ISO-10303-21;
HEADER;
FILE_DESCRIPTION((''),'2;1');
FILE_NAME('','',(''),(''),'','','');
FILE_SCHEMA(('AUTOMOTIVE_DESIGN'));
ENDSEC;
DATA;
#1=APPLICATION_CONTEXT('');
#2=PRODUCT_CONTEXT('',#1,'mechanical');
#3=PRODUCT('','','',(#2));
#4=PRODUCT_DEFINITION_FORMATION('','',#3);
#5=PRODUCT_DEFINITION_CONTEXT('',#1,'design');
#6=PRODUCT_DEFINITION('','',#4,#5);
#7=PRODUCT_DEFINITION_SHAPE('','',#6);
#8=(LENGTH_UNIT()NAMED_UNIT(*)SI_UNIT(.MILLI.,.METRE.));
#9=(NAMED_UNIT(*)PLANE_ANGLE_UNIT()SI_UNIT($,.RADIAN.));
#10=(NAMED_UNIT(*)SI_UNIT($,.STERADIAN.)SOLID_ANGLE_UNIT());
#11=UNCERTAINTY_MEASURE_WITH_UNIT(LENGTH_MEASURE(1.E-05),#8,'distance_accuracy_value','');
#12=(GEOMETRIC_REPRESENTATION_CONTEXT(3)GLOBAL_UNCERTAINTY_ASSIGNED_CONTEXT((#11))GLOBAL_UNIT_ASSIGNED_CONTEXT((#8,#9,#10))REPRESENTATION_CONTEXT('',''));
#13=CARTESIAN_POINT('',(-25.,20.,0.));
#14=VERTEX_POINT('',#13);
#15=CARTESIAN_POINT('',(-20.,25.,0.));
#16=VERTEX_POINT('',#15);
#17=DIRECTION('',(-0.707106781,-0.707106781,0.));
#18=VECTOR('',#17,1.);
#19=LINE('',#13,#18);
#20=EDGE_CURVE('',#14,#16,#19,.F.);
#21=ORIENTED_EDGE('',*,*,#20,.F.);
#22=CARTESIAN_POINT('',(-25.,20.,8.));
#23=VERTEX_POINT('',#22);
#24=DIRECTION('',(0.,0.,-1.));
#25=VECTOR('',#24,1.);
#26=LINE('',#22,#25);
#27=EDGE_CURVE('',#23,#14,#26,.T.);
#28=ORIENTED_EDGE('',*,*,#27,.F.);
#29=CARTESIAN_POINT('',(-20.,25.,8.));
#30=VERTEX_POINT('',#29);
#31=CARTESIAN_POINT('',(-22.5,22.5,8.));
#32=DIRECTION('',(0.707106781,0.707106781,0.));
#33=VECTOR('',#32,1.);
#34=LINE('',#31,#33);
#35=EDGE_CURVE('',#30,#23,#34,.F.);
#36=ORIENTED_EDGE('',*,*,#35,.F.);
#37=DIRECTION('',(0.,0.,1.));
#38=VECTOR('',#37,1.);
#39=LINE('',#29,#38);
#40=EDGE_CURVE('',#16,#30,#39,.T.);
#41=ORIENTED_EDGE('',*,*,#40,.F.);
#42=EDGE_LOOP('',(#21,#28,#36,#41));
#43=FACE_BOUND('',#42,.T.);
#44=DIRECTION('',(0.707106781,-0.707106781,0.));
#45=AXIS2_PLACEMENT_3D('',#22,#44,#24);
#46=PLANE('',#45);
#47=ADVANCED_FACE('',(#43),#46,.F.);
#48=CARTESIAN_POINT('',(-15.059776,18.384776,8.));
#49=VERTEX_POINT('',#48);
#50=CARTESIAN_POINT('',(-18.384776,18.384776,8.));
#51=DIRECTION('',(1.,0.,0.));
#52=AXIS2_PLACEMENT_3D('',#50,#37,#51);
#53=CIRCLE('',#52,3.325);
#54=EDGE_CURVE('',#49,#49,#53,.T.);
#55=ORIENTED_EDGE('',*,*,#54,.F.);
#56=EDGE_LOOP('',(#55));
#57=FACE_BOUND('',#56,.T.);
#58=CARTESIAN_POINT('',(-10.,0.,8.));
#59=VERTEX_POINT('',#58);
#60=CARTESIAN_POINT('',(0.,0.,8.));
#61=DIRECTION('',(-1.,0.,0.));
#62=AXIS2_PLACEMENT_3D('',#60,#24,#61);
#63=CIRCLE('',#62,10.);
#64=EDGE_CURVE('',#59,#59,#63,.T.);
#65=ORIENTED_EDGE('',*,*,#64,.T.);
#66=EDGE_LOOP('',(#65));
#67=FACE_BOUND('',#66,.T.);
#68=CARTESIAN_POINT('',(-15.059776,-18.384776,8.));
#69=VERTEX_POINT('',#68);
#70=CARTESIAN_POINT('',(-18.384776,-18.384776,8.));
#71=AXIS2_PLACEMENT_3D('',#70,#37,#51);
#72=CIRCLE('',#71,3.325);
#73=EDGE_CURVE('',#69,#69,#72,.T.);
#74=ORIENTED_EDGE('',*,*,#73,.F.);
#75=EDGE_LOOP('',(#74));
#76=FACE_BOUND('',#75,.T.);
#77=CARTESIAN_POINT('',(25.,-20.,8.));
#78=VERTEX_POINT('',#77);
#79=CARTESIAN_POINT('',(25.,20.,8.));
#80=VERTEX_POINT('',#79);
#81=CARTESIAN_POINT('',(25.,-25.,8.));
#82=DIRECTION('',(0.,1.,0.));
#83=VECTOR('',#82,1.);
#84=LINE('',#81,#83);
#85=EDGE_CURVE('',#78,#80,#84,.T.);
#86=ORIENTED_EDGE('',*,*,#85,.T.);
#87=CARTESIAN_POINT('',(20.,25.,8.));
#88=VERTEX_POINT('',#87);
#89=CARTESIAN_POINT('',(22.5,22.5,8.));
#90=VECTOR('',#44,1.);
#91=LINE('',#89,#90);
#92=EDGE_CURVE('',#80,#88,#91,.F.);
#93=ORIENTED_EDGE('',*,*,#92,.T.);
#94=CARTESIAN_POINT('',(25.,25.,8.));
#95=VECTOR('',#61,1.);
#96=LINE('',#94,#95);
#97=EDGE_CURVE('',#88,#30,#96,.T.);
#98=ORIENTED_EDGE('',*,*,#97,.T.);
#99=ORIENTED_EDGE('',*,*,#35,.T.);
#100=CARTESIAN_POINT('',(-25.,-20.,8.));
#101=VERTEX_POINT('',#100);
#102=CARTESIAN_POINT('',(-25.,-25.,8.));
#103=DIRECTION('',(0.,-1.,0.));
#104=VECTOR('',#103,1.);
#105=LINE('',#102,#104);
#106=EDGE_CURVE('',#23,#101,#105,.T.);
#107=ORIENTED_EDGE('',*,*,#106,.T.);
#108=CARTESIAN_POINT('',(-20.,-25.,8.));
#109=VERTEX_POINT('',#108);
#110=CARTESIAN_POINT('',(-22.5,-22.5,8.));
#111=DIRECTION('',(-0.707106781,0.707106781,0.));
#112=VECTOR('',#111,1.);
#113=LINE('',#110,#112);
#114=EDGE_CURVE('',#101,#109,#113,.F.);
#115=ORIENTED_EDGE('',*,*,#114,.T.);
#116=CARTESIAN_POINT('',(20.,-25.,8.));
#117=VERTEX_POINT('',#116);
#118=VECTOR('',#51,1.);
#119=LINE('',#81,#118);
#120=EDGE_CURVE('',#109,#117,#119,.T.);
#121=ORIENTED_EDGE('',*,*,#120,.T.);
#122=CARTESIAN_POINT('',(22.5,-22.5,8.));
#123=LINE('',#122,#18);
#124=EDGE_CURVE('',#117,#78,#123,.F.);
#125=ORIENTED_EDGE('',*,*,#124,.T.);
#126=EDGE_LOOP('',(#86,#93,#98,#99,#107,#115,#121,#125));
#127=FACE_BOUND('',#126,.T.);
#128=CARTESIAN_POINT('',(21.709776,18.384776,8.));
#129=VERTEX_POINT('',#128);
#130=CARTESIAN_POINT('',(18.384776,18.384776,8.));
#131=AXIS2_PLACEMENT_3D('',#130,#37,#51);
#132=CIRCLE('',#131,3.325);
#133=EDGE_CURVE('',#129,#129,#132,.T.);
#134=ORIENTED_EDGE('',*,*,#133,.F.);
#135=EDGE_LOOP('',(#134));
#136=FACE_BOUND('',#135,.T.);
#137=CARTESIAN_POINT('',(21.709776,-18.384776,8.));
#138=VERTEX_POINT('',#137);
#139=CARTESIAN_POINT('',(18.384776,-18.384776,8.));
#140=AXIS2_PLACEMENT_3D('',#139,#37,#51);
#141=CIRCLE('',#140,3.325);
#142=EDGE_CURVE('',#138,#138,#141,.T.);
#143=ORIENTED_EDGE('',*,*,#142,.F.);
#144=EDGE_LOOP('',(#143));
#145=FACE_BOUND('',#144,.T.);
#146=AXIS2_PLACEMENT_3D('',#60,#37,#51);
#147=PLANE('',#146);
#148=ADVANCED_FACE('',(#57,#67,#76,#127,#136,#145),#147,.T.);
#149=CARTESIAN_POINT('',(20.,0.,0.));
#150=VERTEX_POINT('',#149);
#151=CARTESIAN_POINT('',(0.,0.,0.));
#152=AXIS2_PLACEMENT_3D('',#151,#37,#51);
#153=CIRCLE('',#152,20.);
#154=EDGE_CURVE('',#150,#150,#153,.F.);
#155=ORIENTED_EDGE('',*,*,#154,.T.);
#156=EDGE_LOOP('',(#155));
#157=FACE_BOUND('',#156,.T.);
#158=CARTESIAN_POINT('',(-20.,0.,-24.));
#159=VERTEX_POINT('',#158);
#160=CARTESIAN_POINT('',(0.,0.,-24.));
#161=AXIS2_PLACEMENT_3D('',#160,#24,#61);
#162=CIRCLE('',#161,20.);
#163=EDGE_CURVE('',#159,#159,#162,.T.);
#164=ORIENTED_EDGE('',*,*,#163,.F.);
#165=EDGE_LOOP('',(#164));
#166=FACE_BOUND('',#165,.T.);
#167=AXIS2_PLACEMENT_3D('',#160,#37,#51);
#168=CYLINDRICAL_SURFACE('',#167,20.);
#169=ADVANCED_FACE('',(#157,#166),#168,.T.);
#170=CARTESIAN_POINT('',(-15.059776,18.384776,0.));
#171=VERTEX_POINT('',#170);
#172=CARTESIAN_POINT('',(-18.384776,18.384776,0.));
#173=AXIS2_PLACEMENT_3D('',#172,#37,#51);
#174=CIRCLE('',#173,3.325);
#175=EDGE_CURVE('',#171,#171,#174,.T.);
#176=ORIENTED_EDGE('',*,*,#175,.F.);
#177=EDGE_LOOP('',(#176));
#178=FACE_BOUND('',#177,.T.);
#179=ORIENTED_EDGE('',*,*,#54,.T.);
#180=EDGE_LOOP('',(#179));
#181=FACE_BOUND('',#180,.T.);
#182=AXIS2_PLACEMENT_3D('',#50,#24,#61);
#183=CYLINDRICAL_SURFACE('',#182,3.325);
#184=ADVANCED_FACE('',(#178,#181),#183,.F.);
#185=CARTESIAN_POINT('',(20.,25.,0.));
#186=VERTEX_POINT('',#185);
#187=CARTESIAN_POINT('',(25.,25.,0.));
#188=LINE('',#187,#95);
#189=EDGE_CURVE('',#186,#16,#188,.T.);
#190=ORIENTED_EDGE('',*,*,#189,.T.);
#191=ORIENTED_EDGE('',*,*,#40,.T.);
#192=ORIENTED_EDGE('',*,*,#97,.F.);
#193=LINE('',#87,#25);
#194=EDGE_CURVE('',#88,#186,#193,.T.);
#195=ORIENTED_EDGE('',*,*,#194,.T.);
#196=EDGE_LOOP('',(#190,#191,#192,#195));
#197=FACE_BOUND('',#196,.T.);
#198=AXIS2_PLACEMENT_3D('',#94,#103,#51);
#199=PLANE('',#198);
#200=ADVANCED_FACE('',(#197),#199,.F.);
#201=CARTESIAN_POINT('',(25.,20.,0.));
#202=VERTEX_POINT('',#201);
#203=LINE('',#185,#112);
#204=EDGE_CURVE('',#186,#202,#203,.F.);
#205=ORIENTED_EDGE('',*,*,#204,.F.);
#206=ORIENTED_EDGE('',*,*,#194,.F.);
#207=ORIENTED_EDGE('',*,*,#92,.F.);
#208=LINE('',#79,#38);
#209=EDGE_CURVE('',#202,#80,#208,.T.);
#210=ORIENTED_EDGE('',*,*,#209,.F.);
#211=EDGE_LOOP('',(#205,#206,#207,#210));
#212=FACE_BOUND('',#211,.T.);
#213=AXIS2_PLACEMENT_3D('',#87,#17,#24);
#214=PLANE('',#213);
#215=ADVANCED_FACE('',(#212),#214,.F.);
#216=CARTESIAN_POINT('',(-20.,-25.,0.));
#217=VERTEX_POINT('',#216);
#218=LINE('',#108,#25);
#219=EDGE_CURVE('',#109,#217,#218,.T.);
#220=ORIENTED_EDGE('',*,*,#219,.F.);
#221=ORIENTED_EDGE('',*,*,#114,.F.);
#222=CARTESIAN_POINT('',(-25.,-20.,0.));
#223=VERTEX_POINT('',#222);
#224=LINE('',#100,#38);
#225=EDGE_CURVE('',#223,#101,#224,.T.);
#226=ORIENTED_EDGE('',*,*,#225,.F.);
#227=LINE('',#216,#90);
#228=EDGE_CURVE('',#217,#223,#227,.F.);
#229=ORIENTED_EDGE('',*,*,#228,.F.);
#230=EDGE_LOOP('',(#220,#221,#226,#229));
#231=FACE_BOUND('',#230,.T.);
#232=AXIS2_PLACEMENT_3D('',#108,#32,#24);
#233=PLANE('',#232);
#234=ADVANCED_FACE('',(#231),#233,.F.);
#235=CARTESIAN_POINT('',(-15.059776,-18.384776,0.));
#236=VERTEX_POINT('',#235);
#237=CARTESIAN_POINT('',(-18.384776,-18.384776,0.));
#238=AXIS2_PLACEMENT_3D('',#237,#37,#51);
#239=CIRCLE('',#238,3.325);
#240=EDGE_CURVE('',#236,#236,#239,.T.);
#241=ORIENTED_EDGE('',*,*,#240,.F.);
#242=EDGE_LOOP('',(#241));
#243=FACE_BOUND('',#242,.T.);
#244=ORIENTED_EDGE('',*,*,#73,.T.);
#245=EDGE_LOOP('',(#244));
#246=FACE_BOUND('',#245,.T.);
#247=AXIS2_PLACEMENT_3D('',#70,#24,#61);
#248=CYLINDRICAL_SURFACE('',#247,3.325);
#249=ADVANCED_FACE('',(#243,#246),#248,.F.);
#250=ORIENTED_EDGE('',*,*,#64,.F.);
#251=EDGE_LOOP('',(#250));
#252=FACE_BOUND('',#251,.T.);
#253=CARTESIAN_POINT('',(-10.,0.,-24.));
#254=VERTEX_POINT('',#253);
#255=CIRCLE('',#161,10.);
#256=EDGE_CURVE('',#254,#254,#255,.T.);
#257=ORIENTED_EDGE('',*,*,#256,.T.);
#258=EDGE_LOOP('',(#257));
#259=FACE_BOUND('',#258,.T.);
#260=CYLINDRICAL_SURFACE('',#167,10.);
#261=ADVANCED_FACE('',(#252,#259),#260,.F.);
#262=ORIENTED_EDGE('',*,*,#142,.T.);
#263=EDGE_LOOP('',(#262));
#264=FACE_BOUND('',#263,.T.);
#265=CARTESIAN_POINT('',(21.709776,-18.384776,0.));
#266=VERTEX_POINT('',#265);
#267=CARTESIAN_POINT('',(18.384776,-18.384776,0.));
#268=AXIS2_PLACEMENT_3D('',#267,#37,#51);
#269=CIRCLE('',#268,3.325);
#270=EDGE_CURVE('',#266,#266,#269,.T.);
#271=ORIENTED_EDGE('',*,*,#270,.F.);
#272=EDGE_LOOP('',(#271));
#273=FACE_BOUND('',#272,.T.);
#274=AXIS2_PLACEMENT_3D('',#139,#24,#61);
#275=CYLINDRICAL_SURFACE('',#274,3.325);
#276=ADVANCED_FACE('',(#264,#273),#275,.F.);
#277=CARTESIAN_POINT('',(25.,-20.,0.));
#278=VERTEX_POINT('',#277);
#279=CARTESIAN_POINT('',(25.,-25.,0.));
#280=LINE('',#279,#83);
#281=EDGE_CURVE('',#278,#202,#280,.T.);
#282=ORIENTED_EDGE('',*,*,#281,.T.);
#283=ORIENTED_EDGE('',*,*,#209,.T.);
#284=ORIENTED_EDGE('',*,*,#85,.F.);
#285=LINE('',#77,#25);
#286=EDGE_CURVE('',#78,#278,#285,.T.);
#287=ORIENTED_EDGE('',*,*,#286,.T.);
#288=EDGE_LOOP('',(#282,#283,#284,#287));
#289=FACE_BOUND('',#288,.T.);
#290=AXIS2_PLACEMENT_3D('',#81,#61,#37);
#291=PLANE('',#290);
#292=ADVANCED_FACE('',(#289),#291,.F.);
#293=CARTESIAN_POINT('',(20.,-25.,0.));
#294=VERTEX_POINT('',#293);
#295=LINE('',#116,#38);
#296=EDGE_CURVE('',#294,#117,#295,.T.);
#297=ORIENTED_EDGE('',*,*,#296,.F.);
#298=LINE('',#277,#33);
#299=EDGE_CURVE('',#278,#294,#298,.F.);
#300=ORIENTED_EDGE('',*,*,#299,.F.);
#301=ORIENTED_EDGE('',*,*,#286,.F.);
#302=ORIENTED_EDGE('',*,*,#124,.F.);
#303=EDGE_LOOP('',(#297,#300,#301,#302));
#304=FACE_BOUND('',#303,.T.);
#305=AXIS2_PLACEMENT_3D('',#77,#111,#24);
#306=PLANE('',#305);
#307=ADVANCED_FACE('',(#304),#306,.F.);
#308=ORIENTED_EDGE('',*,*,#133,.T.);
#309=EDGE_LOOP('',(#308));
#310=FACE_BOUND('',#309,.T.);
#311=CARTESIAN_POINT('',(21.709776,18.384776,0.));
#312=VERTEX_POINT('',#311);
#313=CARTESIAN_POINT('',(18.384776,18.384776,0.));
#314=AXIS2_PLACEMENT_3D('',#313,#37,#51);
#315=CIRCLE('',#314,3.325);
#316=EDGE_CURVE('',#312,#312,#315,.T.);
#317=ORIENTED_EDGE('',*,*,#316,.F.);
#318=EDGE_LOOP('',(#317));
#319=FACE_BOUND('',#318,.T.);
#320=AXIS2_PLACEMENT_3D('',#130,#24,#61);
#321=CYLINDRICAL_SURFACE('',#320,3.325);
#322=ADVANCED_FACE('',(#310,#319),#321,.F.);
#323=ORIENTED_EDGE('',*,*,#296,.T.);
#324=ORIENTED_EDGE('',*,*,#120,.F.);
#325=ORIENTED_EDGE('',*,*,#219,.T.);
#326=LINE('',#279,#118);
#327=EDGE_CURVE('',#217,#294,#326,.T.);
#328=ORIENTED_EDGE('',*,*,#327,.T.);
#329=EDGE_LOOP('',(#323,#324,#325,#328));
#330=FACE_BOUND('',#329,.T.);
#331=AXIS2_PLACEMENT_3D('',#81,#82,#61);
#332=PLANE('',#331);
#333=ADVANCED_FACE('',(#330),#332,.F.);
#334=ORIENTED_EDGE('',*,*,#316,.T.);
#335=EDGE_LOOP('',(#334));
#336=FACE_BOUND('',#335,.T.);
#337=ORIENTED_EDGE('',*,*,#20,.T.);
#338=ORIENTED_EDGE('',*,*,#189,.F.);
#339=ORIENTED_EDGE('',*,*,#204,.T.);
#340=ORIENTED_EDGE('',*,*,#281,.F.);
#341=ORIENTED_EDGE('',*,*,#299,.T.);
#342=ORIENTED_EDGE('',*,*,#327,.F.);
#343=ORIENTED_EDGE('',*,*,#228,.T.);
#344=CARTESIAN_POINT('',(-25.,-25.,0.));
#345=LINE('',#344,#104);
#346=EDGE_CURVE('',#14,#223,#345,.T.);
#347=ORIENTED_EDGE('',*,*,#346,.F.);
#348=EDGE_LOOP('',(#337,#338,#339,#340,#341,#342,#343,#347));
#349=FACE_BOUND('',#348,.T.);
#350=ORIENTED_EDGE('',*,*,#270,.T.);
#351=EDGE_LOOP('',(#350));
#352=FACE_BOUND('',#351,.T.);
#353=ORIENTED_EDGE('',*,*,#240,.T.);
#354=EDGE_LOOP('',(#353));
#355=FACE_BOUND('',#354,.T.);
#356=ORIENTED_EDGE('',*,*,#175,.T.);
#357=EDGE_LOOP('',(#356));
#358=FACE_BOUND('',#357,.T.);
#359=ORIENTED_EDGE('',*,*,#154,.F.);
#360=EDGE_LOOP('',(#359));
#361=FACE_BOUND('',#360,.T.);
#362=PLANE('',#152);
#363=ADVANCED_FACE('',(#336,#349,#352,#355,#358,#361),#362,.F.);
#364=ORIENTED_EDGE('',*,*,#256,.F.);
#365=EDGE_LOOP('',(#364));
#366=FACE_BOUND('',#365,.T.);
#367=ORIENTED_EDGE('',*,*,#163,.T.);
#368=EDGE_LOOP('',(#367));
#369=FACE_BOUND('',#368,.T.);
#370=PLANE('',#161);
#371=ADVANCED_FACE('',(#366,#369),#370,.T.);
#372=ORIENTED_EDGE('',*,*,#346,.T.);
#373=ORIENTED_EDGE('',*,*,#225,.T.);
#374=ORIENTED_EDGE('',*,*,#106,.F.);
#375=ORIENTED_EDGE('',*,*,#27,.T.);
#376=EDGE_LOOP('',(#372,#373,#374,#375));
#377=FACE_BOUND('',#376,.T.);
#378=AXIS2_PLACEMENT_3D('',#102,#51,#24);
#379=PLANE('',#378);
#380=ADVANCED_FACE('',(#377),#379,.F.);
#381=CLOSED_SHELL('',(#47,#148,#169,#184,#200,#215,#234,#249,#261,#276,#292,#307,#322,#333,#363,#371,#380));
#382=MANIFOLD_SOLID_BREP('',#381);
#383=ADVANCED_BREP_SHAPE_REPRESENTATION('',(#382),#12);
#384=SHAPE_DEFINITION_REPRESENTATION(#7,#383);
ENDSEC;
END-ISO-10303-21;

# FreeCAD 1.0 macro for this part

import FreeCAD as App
import Part
import Sketcher

V = App.Vector


def edges_at(feature, points):
    """Names of the edges that pass closest to the given points."""
    edges = feature.Shape.Edges
    near = lambda p: min(range(len(edges)), key=lambda i: edges[i].distToShape(Part.Vertex(*p))[0])
    return sorted({f"Edge{near(p) + 1}" for p in points})


def add_polygon(sketch, points):
    """Adds a closed chain of lines whose ends are joined by coincident constraints."""
    first, n = sketch.GeometryCount, len(points)
    for a, b in zip(points, points[1:] + points[:1]):
        sketch.addGeometry(Part.LineSegment(App.Vector(*a, 0), App.Vector(*b, 0)), False)
    for i in range(n):
        sketch.addConstraint(Sketcher.Constraint("Coincident", first + i, 2, first + (i + 1) % n, 1))

doc = App.newDocument("Part")
body = doc.addObject("PartDesign::Body", "Body")

# Sketch on XY plane
sketch1 = body.newObject("Sketcher::SketchObject", "Sketch")
sketch1.AttachmentSupport = (doc.getObject("XY_Plane"), [""])
sketch1.MapMode = "FlatFace"
add_polygon(sketch1, [(-25, 25), (-25, -25), (25, -25), (25, 25)])  # lines 0-3
sketch1.addGeometry(Part.Circle(V(-18.4, -18.4, 0), V(0, 0, 1), 3.3), False)  # 4
sketch1.addGeometry(Part.Circle(V(18.4, -18.4, 0), V(0, 0, 1), 3.3), False)  # 5
sketch1.addGeometry(Part.Circle(V(-18.4, 18.4, 0), V(0, 0, 1), 3.3), False)  # 6
sketch1.addGeometry(Part.Circle(V(18.4, 18.4, 0), V(0, 0, 1), 3.3), False)  # 7
sketch1.addConstraint([
    Sketcher.Constraint("Vertical", 0),
    Sketcher.Constraint("Horizontal", 1),
    Sketcher.Constraint("Vertical", 2),
    Sketcher.Constraint("Horizontal", 3),
    Sketcher.Constraint("Equal", 4, 5),
    Sketcher.Constraint("Equal", 5, 6),
    Sketcher.Constraint("Equal", 6, 7),
    Sketcher.Constraint("Symmetric", 5, 3, 6, 3, -1, 1),
    Sketcher.Constraint("Symmetric", 4, 3, 7, 3, -1, 1),
    Sketcher.Constraint("Symmetric", 0, 2, 2, 2, -1, 1),
    Sketcher.Constraint("Symmetric", 4, 3, 5, 3, -2),
    Sketcher.Constraint("Equal", 3, 0),
    Sketcher.Constraint("Diameter", 4, 6.65),
    Sketcher.Constraint("DistanceX", 1, 1, 1, 2, 50.0),
    Sketcher.Constraint("DistanceX", 4, 3, -1, 1, 18.384776),
    Sketcher.Constraint("DistanceY", 4, 3, -1, 1, 18.384776),
])
pad1 = body.newObject("PartDesign::Pad", "Pad")
pad1.Profile = sketch1
pad1.Length = 8
doc.recompute()

chamfer = body.newObject("PartDesign::Chamfer", "Chamfer")
chamfer.Base = (pad1, edges_at(pad1, [
    (-25, 25, 4),
    (25, 25, 4),
    (25, -25, 4),
    (-25, -25, 4),
]))
chamfer.Size = 5

# Sketch on XY plane
sketch2 = body.newObject("Sketcher::SketchObject", "Sketch001")
sketch2.AttachmentSupport = (doc.getObject("XY_Plane"), [""])
sketch2.MapMode = "FlatFace"
sketch2.addGeometry([
    Part.Circle(V(0, 0, 0), V(0, 0, 1), 20),
    Part.Circle(V(0, 0, 0), V(0, 0, 1), 10),
], False)
sketch2.addConstraint([
    Sketcher.Constraint("Coincident", 0, 3, -1, 1),
    Sketcher.Constraint("Coincident", 1, 3, -1, 1),
    Sketcher.Constraint("Diameter", 0, 40.0),
    Sketcher.Constraint("Diameter", 1, 20.0),
])
pad2 = body.newObject("PartDesign::Pad", "Pad001")
pad2.Profile = sketch2
pad2.Length = 24
pad2.Reversed = True

# Sketch on XY plane
sketch3 = body.newObject("Sketcher::SketchObject", "Sketch002")
sketch3.AttachmentSupport = (doc.getObject("XY_Plane"), [""])
sketch3.MapMode = "FlatFace"
sketch3.addGeometry(Part.Circle(V(0, 0, 0), V(0, 0, 1), 10), False)
sketch3.addConstraint([
    Sketcher.Constraint("Coincident", 0, 3, -1, 1),
    Sketcher.Constraint("Diameter", 0, 20.0),
])
pocket1 = body.newObject("PartDesign::Pocket", "Pocket")
pocket1.Profile = sketch3
pocket1.Type = "ThroughAll"
pocket1.Reversed = True

doc.recompute()
